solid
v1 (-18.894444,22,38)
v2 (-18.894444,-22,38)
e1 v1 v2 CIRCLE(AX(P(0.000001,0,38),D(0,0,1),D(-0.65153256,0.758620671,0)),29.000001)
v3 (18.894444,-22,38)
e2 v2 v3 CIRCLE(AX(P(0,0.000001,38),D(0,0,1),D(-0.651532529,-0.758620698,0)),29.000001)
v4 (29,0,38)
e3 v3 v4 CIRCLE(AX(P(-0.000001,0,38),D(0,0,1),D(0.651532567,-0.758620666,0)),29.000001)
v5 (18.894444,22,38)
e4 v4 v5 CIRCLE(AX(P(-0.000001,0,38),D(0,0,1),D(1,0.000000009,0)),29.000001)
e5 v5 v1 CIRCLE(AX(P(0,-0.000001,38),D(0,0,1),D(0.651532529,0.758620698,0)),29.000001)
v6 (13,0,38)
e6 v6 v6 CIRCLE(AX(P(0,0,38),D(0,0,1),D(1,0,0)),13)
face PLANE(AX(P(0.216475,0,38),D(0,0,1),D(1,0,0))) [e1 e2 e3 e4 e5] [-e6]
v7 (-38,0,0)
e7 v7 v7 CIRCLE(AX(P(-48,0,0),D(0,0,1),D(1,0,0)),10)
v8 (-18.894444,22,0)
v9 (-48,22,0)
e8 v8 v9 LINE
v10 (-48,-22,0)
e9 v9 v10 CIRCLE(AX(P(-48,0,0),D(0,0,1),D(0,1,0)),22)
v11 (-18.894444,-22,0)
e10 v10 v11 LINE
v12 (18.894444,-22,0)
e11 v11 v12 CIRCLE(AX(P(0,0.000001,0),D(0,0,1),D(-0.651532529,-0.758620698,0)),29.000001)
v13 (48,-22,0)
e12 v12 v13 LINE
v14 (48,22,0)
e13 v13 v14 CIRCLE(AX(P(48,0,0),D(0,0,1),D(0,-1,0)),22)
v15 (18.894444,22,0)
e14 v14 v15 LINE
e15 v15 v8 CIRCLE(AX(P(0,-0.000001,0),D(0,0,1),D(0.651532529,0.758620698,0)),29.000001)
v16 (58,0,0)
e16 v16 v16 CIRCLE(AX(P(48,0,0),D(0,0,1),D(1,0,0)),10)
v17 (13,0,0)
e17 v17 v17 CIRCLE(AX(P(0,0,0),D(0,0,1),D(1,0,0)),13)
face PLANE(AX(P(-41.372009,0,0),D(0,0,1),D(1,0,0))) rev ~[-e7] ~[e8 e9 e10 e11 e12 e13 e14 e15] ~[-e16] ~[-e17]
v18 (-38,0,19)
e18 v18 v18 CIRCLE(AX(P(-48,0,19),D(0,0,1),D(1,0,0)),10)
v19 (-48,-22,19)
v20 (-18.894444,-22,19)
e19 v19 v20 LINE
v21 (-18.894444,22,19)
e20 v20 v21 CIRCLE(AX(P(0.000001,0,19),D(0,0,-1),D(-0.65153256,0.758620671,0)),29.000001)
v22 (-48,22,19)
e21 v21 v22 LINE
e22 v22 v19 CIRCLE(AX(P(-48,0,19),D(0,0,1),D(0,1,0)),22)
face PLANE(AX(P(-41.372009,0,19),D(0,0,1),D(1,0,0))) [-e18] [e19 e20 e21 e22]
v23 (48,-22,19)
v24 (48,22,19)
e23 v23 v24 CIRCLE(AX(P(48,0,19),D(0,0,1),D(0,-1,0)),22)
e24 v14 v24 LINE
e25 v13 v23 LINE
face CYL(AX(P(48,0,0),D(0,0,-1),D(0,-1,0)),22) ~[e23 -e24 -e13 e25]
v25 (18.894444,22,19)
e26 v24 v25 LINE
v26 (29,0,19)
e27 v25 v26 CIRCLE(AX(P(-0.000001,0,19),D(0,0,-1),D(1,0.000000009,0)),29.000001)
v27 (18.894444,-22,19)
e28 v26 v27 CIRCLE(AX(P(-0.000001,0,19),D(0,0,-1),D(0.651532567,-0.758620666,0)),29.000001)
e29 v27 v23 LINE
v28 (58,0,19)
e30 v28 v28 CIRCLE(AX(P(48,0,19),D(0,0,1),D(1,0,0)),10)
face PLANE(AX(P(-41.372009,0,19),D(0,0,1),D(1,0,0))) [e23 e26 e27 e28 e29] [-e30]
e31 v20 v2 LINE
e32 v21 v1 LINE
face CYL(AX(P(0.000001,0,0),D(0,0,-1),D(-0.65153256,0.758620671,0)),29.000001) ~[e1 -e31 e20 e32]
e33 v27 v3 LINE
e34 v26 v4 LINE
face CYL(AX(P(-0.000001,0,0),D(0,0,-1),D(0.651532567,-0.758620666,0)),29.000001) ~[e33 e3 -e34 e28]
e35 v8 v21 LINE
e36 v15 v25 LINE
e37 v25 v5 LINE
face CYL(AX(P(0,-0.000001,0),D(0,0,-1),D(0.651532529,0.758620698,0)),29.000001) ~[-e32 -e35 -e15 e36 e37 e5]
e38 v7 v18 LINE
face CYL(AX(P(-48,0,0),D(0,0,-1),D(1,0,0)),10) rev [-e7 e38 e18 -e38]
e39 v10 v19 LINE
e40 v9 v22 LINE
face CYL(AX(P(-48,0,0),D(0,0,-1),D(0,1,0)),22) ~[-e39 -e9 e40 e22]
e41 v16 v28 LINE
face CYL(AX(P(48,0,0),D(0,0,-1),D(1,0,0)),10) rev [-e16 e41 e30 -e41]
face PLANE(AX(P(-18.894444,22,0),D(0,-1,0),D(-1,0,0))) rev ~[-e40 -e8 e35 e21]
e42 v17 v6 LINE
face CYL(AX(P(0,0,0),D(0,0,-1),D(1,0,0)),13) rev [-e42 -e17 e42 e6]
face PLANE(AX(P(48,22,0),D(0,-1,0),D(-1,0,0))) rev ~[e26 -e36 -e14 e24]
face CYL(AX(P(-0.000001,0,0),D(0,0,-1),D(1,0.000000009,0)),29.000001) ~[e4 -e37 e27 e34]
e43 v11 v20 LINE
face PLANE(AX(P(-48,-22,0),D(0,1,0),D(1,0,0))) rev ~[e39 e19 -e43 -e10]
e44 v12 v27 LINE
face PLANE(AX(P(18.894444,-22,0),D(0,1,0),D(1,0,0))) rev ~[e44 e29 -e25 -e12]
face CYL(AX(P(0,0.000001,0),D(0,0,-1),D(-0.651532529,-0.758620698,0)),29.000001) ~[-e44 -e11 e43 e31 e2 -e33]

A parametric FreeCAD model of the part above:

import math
import FreeCAD as App
import Part
import Sketcher

V = App.Vector
Q = App.Units.Quantity

doc = App.newDocument("Part")
body = doc.addObject("PartDesign::Body", "Body")

# Sketch on XY plane
sketch1 = body.newObject("Sketcher::SketchObject", "Sketch")
sketch1.AttachmentSupport = (doc.getObject("XY_Plane"), [""])
sketch1.MapMode = "FlatFace"
sketch1.addGeometry([
    Part.LineSegment(V(-48, -22, 0), V(-18.894444, -22, 0)),  # 0
    Part.ArcOfCircle(Part.Circle(V(0, 0.000001, 0), V(0, 0, 1), 29.000001), math.radians(-130.657248), math.radians(-49.342752)),  # 1
    Part.LineSegment(V(18.894444, -22, 0), V(48, -22, 0)),  # 2
    Part.ArcOfCircle(Part.Circle(V(48, 0, 0), V(0, 0, 1), 22), math.radians(-90), math.radians(90)),  # 3
    Part.LineSegment(V(48, 22, 0), V(18.894444, 22, 0)),  # 4
    Part.ArcOfCircle(Part.Circle(V(0, -0.000001, 0), V(0, 0, 1), 29.000001), math.radians(49.342752), math.radians(130.657248)),  # 5
    Part.LineSegment(V(-18.894444, 22, 0), V(-48, 22, 0)),  # 6
    Part.ArcOfCircle(Part.Circle(V(-48, 0, 0), V(0, 0, 1), 22), math.radians(90), math.radians(270)),  # 7
    Part.Circle(V(-48, 0, 0), V(0, 0, 1), 10),  # 8
    Part.Circle(V(0, 0, 0), V(0, 0, 1), 13),  # 9
    Part.Circle(V(48, 0, 0), V(0, 0, 1), 10),  # 10
], False)
sketch1.addConstraint([
    Sketcher.Constraint("Coincident", 0, 2, 1, 1),
    Sketcher.Constraint("Coincident", 1, 2, 2, 1),
    Sketcher.Constraint("Tangent", 2, 2, 3, 1),
    Sketcher.Constraint("Tangent", 3, 2, 4, 1),
    Sketcher.Constraint("Coincident", 4, 2, 5, 1),
    Sketcher.Constraint("Coincident", 5, 2, 6, 1),
    Sketcher.Constraint("Tangent", 6, 2, 7, 1),
    Sketcher.Constraint("Tangent", 7, 2, 0, 1),
    Sketcher.Constraint("Horizontal", 0),
    Sketcher.Constraint("Horizontal", 2),
    Sketcher.Constraint("Horizontal", 4),
    Sketcher.Constraint("Horizontal", 6),
    Sketcher.Constraint("Coincident", 1, 3, -1, 1),
    Sketcher.Constraint("Coincident", 5, 3, -1, 1),
    Sketcher.Constraint("Coincident", 9, 3, -1, 1),
    Sketcher.Constraint("Coincident", 8, 3, 7, 3),
    Sketcher.Constraint("Coincident", 10, 3, 3, 3),
    Sketcher.Constraint("Equal", 1, 5),
    Sketcher.Constraint("Equal", 3, 7),
    Sketcher.Constraint("Equal", 8, 10),
    Sketcher.Constraint("Symmetric", 3, 3, 7, 3, -1, 1),
    Sketcher.Constraint("PointOnObject", 3, 3, -1),
    Sketcher.Constraint("Diameter", 8, Q("20 mm")),
    Sketcher.Constraint("Diameter", 9, Q("26 mm")),
    Sketcher.Constraint("Radius", 1, Q("29.000001 mm")),
    Sketcher.Constraint("Radius", 3, Q("22 mm")),
    Sketcher.Constraint("DistanceX", -1, 1, 3, 3, Q("48 mm")),
])
pad1 = body.newObject("PartDesign::Pad", "Pad")
pad1.Profile = sketch1
pad1.Length = 19

# Sketch on XY plane
sketch2 = body.newObject("Sketcher::SketchObject", "Sketch001")
sketch2.AttachmentSupport = (doc.getObject("XY_Plane"), [""])
sketch2.MapMode = "FlatFace"
sketch2.addGeometry([
    Part.ArcOfCircle(Part.Circle(V(-0.000001, 0, 0), V(0, 0, 1), 29.000001), math.radians(-49.342749), math.radians(-0.000001)),  # 0
    Part.ArcOfCircle(Part.Circle(V(-0.000001, 0, 0), V(0, 0, 1), 29.000001), math.radians(0.000001), math.radians(49.342749)),  # 1
    Part.ArcOfCircle(Part.Circle(V(0, -0.000001, 0), V(0, 0, 1), 29.000001), math.radians(49.342752), math.radians(130.657248)),  # 2
    Part.ArcOfCircle(Part.Circle(V(0.000001, 0, 0), V(0, 0, 1), 29.000001), math.radians(130.65725), math.radians(229.34275)),  # 3
    Part.ArcOfCircle(Part.Circle(V(0, 0.000001, 0), V(0, 0, 1), 29.000001), math.radians(-130.657248), math.radians(-49.342752)),  # 4
    Part.Circle(V(0, 0, 0), V(0, 0, 1), 13),  # 5
], False)
sketch2.addConstraint([
    Sketcher.Constraint("Tangent", 0, 2, 1, 1),
    Sketcher.Constraint("Tangent", 1, 2, 2, 1),
    Sketcher.Constraint("Tangent", 2, 2, 3, 1),
    Sketcher.Constraint("Tangent", 3, 2, 4, 1),
    Sketcher.Constraint("Tangent", 4, 2, 0, 1),
    Sketcher.Constraint("Coincident", 0, 3, -1, 1),
    Sketcher.Constraint("Coincident", 2, 3, -1, 1),
    Sketcher.Constraint("Coincident", 5, 3, -1, 1),
    Sketcher.Constraint("PointOnObject", 0, 2, -1),
    Sketcher.Constraint("Horizontal", 1, 2, 2, 2),
    Sketcher.Constraint("Horizontal", 3, 2, 4, 2),
    Sketcher.Constraint("Vertical", 2, 2, 3, 2),
    Sketcher.Constraint("Diameter", 5, Q("26 mm")),
    Sketcher.Constraint("Radius", 0, Q("29.000001 mm")),
    Sketcher.Constraint("DistanceY", -1, 1, 1, 2, Q("22 mm")),
])
pad2 = body.newObject("PartDesign::Pad", "Pad001")
pad2.Profile = sketch2
pad2.Length = 38

doc.recompute()
